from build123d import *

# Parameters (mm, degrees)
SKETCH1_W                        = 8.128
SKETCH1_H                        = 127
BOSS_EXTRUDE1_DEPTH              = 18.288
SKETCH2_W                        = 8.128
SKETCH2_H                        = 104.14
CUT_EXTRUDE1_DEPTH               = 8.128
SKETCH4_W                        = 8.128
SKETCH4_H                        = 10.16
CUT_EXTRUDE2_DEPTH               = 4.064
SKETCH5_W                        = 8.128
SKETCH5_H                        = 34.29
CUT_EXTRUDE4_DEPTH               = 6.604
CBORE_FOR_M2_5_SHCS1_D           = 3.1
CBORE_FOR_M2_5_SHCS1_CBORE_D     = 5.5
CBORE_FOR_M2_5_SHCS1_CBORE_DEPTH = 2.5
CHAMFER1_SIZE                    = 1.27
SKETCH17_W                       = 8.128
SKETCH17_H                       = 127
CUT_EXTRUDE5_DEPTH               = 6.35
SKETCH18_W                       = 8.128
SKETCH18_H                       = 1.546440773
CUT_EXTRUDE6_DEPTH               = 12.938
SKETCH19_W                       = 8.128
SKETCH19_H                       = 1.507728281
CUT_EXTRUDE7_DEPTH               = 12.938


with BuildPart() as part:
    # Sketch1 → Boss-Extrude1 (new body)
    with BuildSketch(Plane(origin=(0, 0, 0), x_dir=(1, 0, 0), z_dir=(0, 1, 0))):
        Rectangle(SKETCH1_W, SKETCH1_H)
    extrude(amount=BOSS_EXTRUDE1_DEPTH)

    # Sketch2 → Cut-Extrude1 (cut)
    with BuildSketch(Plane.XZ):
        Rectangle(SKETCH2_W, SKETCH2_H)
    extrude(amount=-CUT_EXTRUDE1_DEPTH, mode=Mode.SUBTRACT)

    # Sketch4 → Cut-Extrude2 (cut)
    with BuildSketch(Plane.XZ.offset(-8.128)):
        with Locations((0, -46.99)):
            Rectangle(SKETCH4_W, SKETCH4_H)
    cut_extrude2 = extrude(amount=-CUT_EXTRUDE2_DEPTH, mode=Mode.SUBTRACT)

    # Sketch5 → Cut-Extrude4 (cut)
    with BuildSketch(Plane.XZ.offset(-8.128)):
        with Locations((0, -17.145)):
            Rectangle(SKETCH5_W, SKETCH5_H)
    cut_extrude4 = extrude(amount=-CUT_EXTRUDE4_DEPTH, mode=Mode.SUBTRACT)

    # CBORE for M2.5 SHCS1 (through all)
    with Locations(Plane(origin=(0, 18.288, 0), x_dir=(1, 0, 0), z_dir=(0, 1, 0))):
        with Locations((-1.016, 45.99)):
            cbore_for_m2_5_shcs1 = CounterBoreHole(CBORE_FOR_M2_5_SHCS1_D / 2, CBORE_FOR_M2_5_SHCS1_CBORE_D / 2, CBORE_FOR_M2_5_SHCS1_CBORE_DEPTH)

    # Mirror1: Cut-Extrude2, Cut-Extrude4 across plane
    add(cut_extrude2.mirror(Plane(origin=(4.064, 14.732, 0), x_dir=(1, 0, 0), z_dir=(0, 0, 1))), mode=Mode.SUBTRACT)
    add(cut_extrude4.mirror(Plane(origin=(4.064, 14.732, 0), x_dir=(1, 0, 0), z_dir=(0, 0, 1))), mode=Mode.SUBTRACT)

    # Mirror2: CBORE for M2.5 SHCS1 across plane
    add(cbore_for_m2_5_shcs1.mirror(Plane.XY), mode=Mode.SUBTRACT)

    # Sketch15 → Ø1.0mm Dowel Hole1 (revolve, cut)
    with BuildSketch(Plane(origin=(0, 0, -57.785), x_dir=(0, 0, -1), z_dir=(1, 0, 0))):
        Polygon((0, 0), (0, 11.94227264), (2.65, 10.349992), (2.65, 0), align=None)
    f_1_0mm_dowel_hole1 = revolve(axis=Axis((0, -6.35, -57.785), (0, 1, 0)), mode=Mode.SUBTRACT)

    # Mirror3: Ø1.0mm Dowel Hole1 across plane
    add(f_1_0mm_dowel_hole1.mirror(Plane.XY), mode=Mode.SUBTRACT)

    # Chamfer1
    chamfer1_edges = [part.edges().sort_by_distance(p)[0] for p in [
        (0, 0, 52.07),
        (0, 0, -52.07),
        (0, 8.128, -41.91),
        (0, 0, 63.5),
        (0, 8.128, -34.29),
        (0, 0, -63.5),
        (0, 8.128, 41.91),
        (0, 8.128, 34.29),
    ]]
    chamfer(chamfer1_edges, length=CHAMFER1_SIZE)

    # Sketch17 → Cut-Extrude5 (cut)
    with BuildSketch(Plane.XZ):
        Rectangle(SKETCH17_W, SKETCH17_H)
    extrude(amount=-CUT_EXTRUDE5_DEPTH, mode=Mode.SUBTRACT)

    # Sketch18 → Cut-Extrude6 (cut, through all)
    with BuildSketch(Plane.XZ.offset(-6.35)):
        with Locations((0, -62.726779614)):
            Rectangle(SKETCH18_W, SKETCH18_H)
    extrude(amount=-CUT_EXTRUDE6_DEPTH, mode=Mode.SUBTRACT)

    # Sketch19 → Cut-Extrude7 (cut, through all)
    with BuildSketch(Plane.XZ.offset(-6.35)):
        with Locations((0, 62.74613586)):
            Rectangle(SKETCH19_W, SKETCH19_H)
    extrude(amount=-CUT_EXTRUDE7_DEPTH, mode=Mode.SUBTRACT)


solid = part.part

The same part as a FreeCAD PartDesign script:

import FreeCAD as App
import Part
import Sketcher
from FreeCAD import Vector
Q = App.Units.Quantity


def edges_at(feature, points):
    """Names of the edges that pass closest to the given points."""
    edges = feature.Shape.Edges
    near = lambda p: min(range(len(edges)), key=lambda i: edges[i].distToShape(Part.Vertex(*p))[0])
    return sorted({f"Edge{near(p) + 1}" for p in points})


def add_polygon(sketch, points):
    """Adds a closed chain of lines whose ends are joined by coincident constraints."""
    first, n = sketch.GeometryCount, len(points)
    for a, b in zip(points, points[1:] + points[:1]):
        sketch.addGeometry(Part.LineSegment(App.Vector(*a, 0), App.Vector(*b, 0)), False)
    for i in range(n):
        sketch.addConstraint(Sketcher.Constraint("Coincident", first + i, 2, first + (i + 1) % n, 1))

doc = App.newDocument("Part")
body = doc.addObject("PartDesign::Body", "Body")

# Sketch on XZ plane
sketch1 = body.newObject("Sketcher::SketchObject", "Sketch")
sketch1.AttachmentSupport = (doc.getObject("XZ_Plane"), [""])
sketch1.MapMode = "FlatFace"
add_polygon(sketch1, [(-4, -64), (-4, 64), (4, 64), (4, -64)])  # lines 0-3
sketch1.addConstraint(Sketcher.Constraint("Vertical", 0))
sketch1.addConstraint(Sketcher.Constraint("Horizontal", 1))
sketch1.addConstraint(Sketcher.Constraint("Vertical", 2))
sketch1.addConstraint(Sketcher.Constraint("Horizontal", 3))
sketch1.addConstraint(Sketcher.Constraint("Symmetric", 0, 2, 2, 2, -1, 1))
sketch1.addConstraint(Sketcher.Constraint("DistanceY", 0, 1, 0, 2, Q("5 in")))
sketch1.addConstraint(Sketcher.Constraint("DistanceX", 1, 1, 1, 2, Q("0.32 in")))
pad1 = body.newObject("PartDesign::Pad", "Pad")
pad1.Profile = sketch1
pad1.Length = Q("0.72 in")
pad1.Reversed = True

# Sketch on XZ plane
sketch2 = body.newObject("Sketcher::SketchObject", "Sketch001")
sketch2.AttachmentSupport = (doc.getObject("XZ_Plane"), [""])
sketch2.MapMode = "FlatFace"
add_polygon(sketch2, [(-4, 52), (-4, -52), (4, -52), (4, 52)])  # lines 0-3
sketch2.addConstraint(Sketcher.Constraint("Vertical", 0))
sketch2.addConstraint(Sketcher.Constraint("Horizontal", 1))
sketch2.addConstraint(Sketcher.Constraint("Vertical", 2))
sketch2.addConstraint(Sketcher.Constraint("Horizontal", 3))
sketch2.addConstraint(Sketcher.Constraint("Symmetric", 0, 2, 2, 2, -1, 1))
sketch2.addConstraint(Sketcher.Constraint("DistanceY", 0, 2, 0, 1, Q("4.1 in")))
sketch2.addConstraint(Sketcher.Constraint("DistanceX", 1, 1, 1, 2, Q("0.32 in")))
pocket1 = body.newObject("PartDesign::Pocket", "Pocket")
pocket1.Profile = sketch2
pocket1.Length = Q("0.32 in")

# Sketch on XZ plane
sketch3 = body.newObject("Sketcher::SketchObject", "Sketch002")
sketch3.AttachmentSupport = (doc.getObject("XZ_Plane"), [""])
sketch3.MapMode = "FlatFace"
sketch3.AttachmentOffset = App.Placement(Vector(0, 0, -0.32 * 25.4), App.Rotation())
add_polygon(sketch3, [(-4, -42), (-4, -52), (4, -52), (4, -42)])  # lines 0-3
sketch3.addConstraint(Sketcher.Constraint("Vertical", 0))
sketch3.addConstraint(Sketcher.Constraint("Horizontal", 1))
sketch3.addConstraint(Sketcher.Constraint("Vertical", 2))
sketch3.addConstraint(Sketcher.Constraint("Horizontal", 3))
sketch3.addConstraint(Sketcher.Constraint("DistanceY", 0, 2, 0, 1, Q("0.4 in")))
sketch3.addConstraint(Sketcher.Constraint("DistanceX", 1, 1, 1, 2, Q("0.32 in")))
sketch3.addConstraint(Sketcher.Constraint("DistanceX", 0, 2, -1, 1, Q("0.16 in")))
sketch3.addConstraint(Sketcher.Constraint("DistanceY", 0, 2, -1, 1, Q("2.05 in")))
pocket2 = body.newObject("PartDesign::Pocket", "Pocket001")
pocket2.Profile = sketch3
pocket2.Length = Q("0.16 in")

# Sketch on XZ plane
sketch4 = body.newObject("Sketcher::SketchObject", "Sketch003")
sketch4.AttachmentSupport = (doc.getObject("XZ_Plane"), [""])
sketch4.MapMode = "FlatFace"
sketch4.AttachmentOffset = App.Placement(Vector(0, 0, -0.32 * 25.4), App.Rotation())
add_polygon(sketch4, [(-4, 0), (-4, -34), (4, -34), (4, 0)])  # lines 0-3
sketch4.addConstraint(Sketcher.Constraint("Vertical", 0))
sketch4.addConstraint(Sketcher.Constraint("Horizontal", 1))
sketch4.addConstraint(Sketcher.Constraint("Vertical", 2))
sketch4.addConstraint(Sketcher.Constraint("Horizontal", 3))
sketch4.addConstraint(Sketcher.Constraint("Symmetric", 2, 2, 3, 2, -1, 1))
sketch4.addConstraint(Sketcher.Constraint("DistanceX", 1, 1, 1, 2, Q("0.32 in")))
sketch4.addConstraint(Sketcher.Constraint("DistanceY", 0, 2, 0, 1, Q("1.35 in")))
pocket3 = body.newObject("PartDesign::Pocket", "Pocket002")
pocket3.Profile = sketch4
pocket3.Length = Q("0.26 in")

# Sketch on XZ plane
sketch5 = body.newObject("Sketcher::SketchObject", "Sketch004")
sketch5.AttachmentSupport = (doc.getObject("XZ_Plane"), [""])
sketch5.MapMode = "FlatFace"
sketch5.AttachmentOffset = App.Placement(Vector(0, 0, -0.72 * 25.4), App.Rotation())
sketch5.addGeometry(Part.Circle(Vector(-1, -46, 0), Vector(0, 0, 1), 1.6), False)
sketch5.addConstraint(Sketcher.Constraint("Diameter", 0, Q("3.1 mm")))
sketch5.addConstraint(Sketcher.Constraint("DistanceX", 0, 3, -1, 1, Q("0.04 in")))
sketch5.addConstraint(Sketcher.Constraint("DistanceY", 0, 3, -1, 1, Q("45.99 mm")))
doc.recompute()
hole = body.newObject("PartDesign::Hole", "Hole")
hole.Profile = sketch5
hole.ThreadType = "None"
hole.Diameter = 3.1
hole.DepthType = "ThroughAll"
hole.HoleCutType = "Counterbore"
hole.HoleCutDiameter = 5.5
hole.HoleCutDepth = 2.5
hole.Reversed = True
doc.recompute()

mirrored = body.newObject("PartDesign::Mirrored", "Mirrored")
mirrored.Originals = [pocket2, pocket3]
mirrored.MirrorPlane = (doc.getObject("XY_Plane"), [""])
body.Tip = mirrored
doc.recompute()

mirrored2 = body.newObject("PartDesign::Mirrored", "Mirrored001")
mirrored2.Originals = [hole]
mirrored2.MirrorPlane = (doc.getObject("XY_Plane"), [""])
body.Tip = mirrored2

# Sketch on YZ plane
sketch6 = body.newObject("Sketcher::SketchObject", "Sketch005")
sketch6.AttachmentSupport = (doc.getObject("YZ_Plane"), [""])
sketch6.MapMode = "FlatFace"
add_polygon(sketch6, [(11.9, -57.8), (0, -57.8), (0, -60.4), (10.3, -60.4)])  # lines 0-3
sketch6.addGeometry(Part.LineSegment(Vector(0, -57.8, 0), Vector(11.9, -57.8, 0)), True)  # axis
sketch6.addConstraint(Sketcher.Constraint("Horizontal", 0))
sketch6.addConstraint(Sketcher.Constraint("Vertical", 1))
sketch6.addConstraint(Sketcher.Constraint("Horizontal", 2))
sketch6.addConstraint(Sketcher.Constraint("Horizontal", 4))
sketch6.addConstraint(Sketcher.Constraint("Coincident", 4, 1, 0, 2))
sketch6.addConstraint(Sketcher.Constraint("PointOnObject", 0, 2, -2))
sketch6.addConstraint(Sketcher.Constraint("Equal", 0, 4))
sketch6.addConstraint(Sketcher.Constraint("Angle", 3, Q("59 deg")))
sketch6.addConstraint(Sketcher.Constraint("DistanceY", 0, 2, -1, 1, Q("2.275 in")))
sketch6.addConstraint(Sketcher.Constraint("DistanceY", 1, 2, 1, 1, Q("2.65 mm")))
sketch6.addConstraint(Sketcher.Constraint("DistanceX", 0, 2, 0, 1, Q("11.942273 mm")))
groove = body.newObject("PartDesign::Groove", "Groove")
groove.Profile = sketch6
groove.ReferenceAxis = (sketch6, ["Axis0"])
groove.Angle = 360
doc.recompute()

mirrored3 = body.newObject("PartDesign::Mirrored", "Mirrored002")
mirrored3.Originals = [groove]
mirrored3.MirrorPlane = (doc.getObject("XY_Plane"), [""])
body.Tip = mirrored3
doc.recompute()

chamfer = body.newObject("PartDesign::Chamfer", "Chamfer")
chamfer.Base = (mirrored3, edges_at(mirrored3, [
    (0, 0, 52.07),
    (0, 0, -52.07),
    (0, 8.128, -41.91),
    (0, 0, 63.5),
    (0, 8.128, -34.29),
    (0, 0, -63.5),
    (0, 8.128, 41.91),
    (0, 8.128, 34.29),
]))
chamfer.Size = Q("0.05 in")

# Sketch on XZ plane
sketch7 = body.newObject("Sketcher::SketchObject", "Sketch006")
sketch7.AttachmentSupport = (doc.getObject("XZ_Plane"), [""])
sketch7.MapMode = "FlatFace"
add_polygon(sketch7, [(-4, 64), (-4, -64), (4, -64), (4, 64)])  # lines 0-3
sketch7.addConstraint(Sketcher.Constraint("Vertical", 0))
sketch7.addConstraint(Sketcher.Constraint("Horizontal", 1))
sketch7.addConstraint(Sketcher.Constraint("Vertical", 2))
sketch7.addConstraint(Sketcher.Constraint("Horizontal", 3))
sketch7.addConstraint(Sketcher.Constraint("Symmetric", 0, 2, 2, 2, -1, 1))
sketch7.addConstraint(Sketcher.Constraint("DistanceY", 0, 2, 0, 1, Q("5 in")))
sketch7.addConstraint(Sketcher.Constraint("DistanceX", 1, 1, 1, 2, Q("0.32 in")))
pocket4 = body.newObject("PartDesign::Pocket", "Pocket003")
pocket4.Profile = sketch7
pocket4.Length = Q("0.25 in")

# Sketch on XZ plane
sketch8 = body.newObject("Sketcher::SketchObject", "Sketch007")
sketch8.AttachmentSupport = (doc.getObject("XZ_Plane"), [""])
sketch8.MapMode = "FlatFace"
sketch8.AttachmentOffset = App.Placement(Vector(0, 0, -0.25 * 25.4), App.Rotation())
add_polygon(sketch8, [(-4.1, -62), (-4.1, -63.5), (4.1, -63.5), (4.1, -62)])  # lines 0-3
sketch8.addConstraint(Sketcher.Constraint("Vertical", 0))
sketch8.addConstraint(Sketcher.Constraint("Horizontal", 1))
sketch8.addConstraint(Sketcher.Constraint("Vertical", 2))
sketch8.addConstraint(Sketcher.Constraint("Horizontal", 3))
sketch8.addConstraint(Sketcher.Constraint("DistanceX", 1, 1, 1, 2, Q("0.32 in")))
sketch8.addConstraint(Sketcher.Constraint("DistanceY", 0, 2, -1, 1, Q("2.5 in")))
sketch8.addConstraint(Sketcher.Constraint("DistanceX", 0, 2, -1, 1, Q("0.16 in")))
sketch8.addConstraint(Sketcher.Constraint("DistanceY", 0, 2, 0, 1, Q("1.546441 mm")))
pocket5 = body.newObject("PartDesign::Pocket", "Pocket004")
pocket5.Profile = sketch8
pocket5.Type = "ThroughAll"

# Sketch on XZ plane
sketch9 = body.newObject("Sketcher::SketchObject", "Sketch008")
sketch9.AttachmentSupport = (doc.getObject("XZ_Plane"), [""])
sketch9.MapMode = "FlatFace"
sketch9.AttachmentOffset = App.Placement(Vector(0, 0, -0.25 * 25.4), App.Rotation())
add_polygon(sketch9, [(-4.1, 63.5), (-4.1, 62), (4.1, 62), (4.1, 63.5)])  # lines 0-3
sketch9.addConstraint(Sketcher.Constraint("Vertical", 0))
sketch9.addConstraint(Sketcher.Constraint("Horizontal", 1))
sketch9.addConstraint(Sketcher.Constraint("Vertical", 2))
sketch9.addConstraint(Sketcher.Constraint("Horizontal", 3))
sketch9.addConstraint(Sketcher.Constraint("DistanceX", 1, 1, 1, 2, Q("0.32 in")))
sketch9.addConstraint(Sketcher.Constraint("DistanceY", -1, 1, 2, 2, Q("2.5 in")))
sketch9.addConstraint(Sketcher.Constraint("DistanceX", 0, 2, -1, 1, Q("0.16 in")))
sketch9.addConstraint(Sketcher.Constraint("DistanceY", 0, 2, 0, 1, Q("1.507728 mm")))
pocket6 = body.newObject("PartDesign::Pocket", "Pocket005")
pocket6.Profile = sketch9
pocket6.Type = "ThroughAll"

doc.recompute()
